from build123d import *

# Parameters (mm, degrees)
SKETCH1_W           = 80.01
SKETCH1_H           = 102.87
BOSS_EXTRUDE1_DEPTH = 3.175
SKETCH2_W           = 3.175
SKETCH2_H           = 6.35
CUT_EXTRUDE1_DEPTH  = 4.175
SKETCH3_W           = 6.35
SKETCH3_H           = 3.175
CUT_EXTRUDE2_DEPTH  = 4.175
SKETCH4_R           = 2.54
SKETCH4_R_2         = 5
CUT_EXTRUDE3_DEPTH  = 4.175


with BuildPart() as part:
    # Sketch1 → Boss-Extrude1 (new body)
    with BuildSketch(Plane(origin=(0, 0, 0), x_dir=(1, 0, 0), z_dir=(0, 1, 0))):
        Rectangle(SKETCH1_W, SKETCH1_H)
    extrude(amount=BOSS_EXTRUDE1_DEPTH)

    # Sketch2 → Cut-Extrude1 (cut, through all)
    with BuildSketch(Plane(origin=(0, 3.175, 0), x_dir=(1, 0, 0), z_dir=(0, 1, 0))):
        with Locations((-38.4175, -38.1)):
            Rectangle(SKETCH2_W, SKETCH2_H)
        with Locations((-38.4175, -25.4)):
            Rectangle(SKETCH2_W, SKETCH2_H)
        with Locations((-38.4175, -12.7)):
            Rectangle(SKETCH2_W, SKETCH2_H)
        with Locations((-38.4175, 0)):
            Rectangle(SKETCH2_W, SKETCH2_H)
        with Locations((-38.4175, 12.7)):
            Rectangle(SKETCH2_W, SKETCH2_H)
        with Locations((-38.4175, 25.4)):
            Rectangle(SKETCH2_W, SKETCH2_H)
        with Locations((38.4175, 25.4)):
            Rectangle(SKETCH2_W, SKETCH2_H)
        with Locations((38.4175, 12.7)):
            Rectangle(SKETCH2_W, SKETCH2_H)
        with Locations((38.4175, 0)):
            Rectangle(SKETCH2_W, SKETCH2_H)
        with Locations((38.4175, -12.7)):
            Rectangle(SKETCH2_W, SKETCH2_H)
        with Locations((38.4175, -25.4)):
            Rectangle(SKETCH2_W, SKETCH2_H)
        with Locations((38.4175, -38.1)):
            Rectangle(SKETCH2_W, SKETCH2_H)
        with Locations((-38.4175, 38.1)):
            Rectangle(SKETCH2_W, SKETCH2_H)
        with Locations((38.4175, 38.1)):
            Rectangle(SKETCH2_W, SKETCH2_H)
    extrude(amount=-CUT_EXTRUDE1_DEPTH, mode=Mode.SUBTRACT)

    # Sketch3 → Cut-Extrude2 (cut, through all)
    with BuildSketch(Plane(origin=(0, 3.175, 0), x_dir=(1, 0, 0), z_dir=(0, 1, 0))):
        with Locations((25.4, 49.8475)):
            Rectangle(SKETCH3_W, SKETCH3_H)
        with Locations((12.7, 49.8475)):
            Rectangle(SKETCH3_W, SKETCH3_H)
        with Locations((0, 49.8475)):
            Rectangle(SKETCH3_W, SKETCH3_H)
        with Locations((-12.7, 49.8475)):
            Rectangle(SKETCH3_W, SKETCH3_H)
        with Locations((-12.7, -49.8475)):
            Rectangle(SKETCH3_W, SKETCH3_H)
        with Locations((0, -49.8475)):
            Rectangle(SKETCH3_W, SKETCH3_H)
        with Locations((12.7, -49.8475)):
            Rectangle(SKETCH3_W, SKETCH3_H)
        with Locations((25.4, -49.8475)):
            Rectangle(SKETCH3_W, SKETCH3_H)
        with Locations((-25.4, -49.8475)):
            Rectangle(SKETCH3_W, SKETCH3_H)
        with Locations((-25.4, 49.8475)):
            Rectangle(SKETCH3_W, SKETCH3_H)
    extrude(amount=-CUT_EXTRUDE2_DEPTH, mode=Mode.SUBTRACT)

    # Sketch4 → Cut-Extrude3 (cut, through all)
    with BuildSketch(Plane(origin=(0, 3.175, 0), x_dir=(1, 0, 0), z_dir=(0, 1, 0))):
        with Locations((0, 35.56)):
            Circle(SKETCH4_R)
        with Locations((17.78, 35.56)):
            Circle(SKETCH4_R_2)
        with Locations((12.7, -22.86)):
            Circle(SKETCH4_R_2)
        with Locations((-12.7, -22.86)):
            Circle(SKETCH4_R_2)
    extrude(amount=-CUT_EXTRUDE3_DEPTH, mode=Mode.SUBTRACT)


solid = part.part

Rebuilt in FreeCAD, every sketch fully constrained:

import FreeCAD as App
import Part
import Sketcher
Q = App.Units.Quantity


def add_polygon(sketch, points):
    """Adds a closed chain of lines whose ends are joined by coincident constraints."""
    first, n = sketch.GeometryCount, len(points)
    for a, b in zip(points, points[1:] + points[:1]):
        sketch.addGeometry(Part.LineSegment(App.Vector(*a, 0), App.Vector(*b, 0)), False)
    for i in range(n):
        sketch.addConstraint(Sketcher.Constraint("Coincident", first + i, 2, first + (i + 1) % n, 1))

doc = App.newDocument("Part")
body = doc.addObject("PartDesign::Body", "Body")

# Sketch on XZ plane
sketch1 = doc.addObject("Sketcher::SketchObject", "Sketch")
body.addObject(sketch1)
sketch1.AttachmentSupport = (doc.XZ_Plane, [""])
sketch1.MapMode = "FlatFace"
add_polygon(sketch1, [(-40, -51), (-40, 51), (40, 51), (40, -51)])  # lines 0-3
sketch1.addConstraint(Sketcher.Constraint("Vertical", 0))
sketch1.addConstraint(Sketcher.Constraint("Horizontal", 1))
sketch1.addConstraint(Sketcher.Constraint("Vertical", 2))
sketch1.addConstraint(Sketcher.Constraint("Horizontal", 3))
sketch1.addConstraint(Sketcher.Constraint("Symmetric", 0, 2, 2, 2, -1, 1))
sketch1.addConstraint(Sketcher.Constraint("DistanceX", 1, 1, 1, 2, Q("3.15 in")))
sketch1.addConstraint(Sketcher.Constraint("DistanceY", 0, 1, 0, 2, Q("4.05 in")))
pad1 = doc.addObject("PartDesign::Pad", "Pad")
body.addObject(pad1)
pad1.Profile = sketch1
pad1.Length = Q("0.125 in")
pad1.Reversed = True

# Sketch on XZ plane
sketch2 = doc.addObject("Sketcher::SketchObject", "Sketch001")
body.addObject(sketch2)
sketch2.AttachmentSupport = (doc.XZ_Plane, [""])
sketch2.MapMode = "FlatFace"
sketch2.AttachmentOffset = App.Placement(App.Vector(0, 0, -0.125 * 25.4), App.Rotation())
add_polygon(sketch2, [(-40, 34.9), (-40, 41.3), (-36.8, 41.3), (-36.8, 34.9)])  # lines 0-3
add_polygon(sketch2, [(-40, 22.2), (-40, 28.6), (-36.8, 28.6), (-36.8, 22.2)])  # lines 4-7
add_polygon(sketch2, [(-40, 9.5), (-40, 15.9), (-36.8, 15.9), (-36.8, 9.5)])  # lines 8-11
add_polygon(sketch2, [(-40, -3.2), (-40, 3.2), (-36.8, 3.2), (-36.8, -3.2)])  # lines 12-15
add_polygon(sketch2, [(-40, -15.9), (-40, -9.5), (-36.8, -9.5), (-36.8, -15.9)])  # lines 16-19
add_polygon(sketch2, [(-40, -28.6), (-40, -22.2), (-36.8, -22.2), (-36.8, -28.6)])  # lines 20-23
add_polygon(sketch2, [(36.8, -28.6), (36.8, -22.2), (40, -22.2), (40, -28.6)])  # lines 24-27
add_polygon(sketch2, [(36.8, -15.9), (36.8, -9.5), (40, -9.5), (40, -15.9)])  # lines 28-31
add_polygon(sketch2, [(36.8, -3.2), (36.8, 3.2), (40, 3.2), (40, -3.2)])  # lines 32-35
add_polygon(sketch2, [(36.8, 9.5), (36.8, 15.9), (40, 15.9), (40, 9.5)])  # lines 36-39
add_polygon(sketch2, [(36.8, 22.2), (36.8, 28.6), (40, 28.6), (40, 22.2)])  # lines 40-43
add_polygon(sketch2, [(36.8, 34.9), (36.8, 41.3), (40, 41.3), (40, 34.9)])  # lines 44-47
add_polygon(sketch2, [(-40, -41.3), (-40, -34.9), (-36.8, -34.9), (-36.8, -41.3)])  # lines 48-51
add_polygon(sketch2, [(36.8, -41.3), (36.8, -34.9), (40, -34.9), (40, -41.3)])  # lines 52-55
sketch2.addConstraint(Sketcher.Constraint("Vertical", 0))
sketch2.addConstraint(Sketcher.Constraint("Horizontal", 1))
sketch2.addConstraint(Sketcher.Constraint("Vertical", 2))
sketch2.addConstraint(Sketcher.Constraint("Horizontal", 3))
sketch2.addConstraint(Sketcher.Constraint("Vertical", 4))
sketch2.addConstraint(Sketcher.Constraint("Horizontal", 5))
sketch2.addConstraint(Sketcher.Constraint("Vertical", 6))
sketch2.addConstraint(Sketcher.Constraint("Horizontal", 7))
sketch2.addConstraint(Sketcher.Constraint("Vertical", 8))
sketch2.addConstraint(Sketcher.Constraint("Horizontal", 9))
sketch2.addConstraint(Sketcher.Constraint("Vertical", 10))
sketch2.addConstraint(Sketcher.Constraint("Horizontal", 11))
sketch2.addConstraint(Sketcher.Constraint("Vertical", 12))
sketch2.addConstraint(Sketcher.Constraint("Horizontal", 13))
sketch2.addConstraint(Sketcher.Constraint("Vertical", 14))
sketch2.addConstraint(Sketcher.Constraint("Horizontal", 15))
sketch2.addConstraint(Sketcher.Constraint("Vertical", 16))
sketch2.addConstraint(Sketcher.Constraint("Horizontal", 17))
sketch2.addConstraint(Sketcher.Constraint("Vertical", 18))
sketch2.addConstraint(Sketcher.Constraint("Horizontal", 19))
sketch2.addConstraint(Sketcher.Constraint("Vertical", 20))
sketch2.addConstraint(Sketcher.Constraint("Horizontal", 21))
sketch2.addConstraint(Sketcher.Constraint("Vertical", 22))
sketch2.addConstraint(Sketcher.Constraint("Horizontal", 23))
sketch2.addConstraint(Sketcher.Constraint("Vertical", 24))
sketch2.addConstraint(Sketcher.Constraint("Horizontal", 25))
sketch2.addConstraint(Sketcher.Constraint("Vertical", 26))
sketch2.addConstraint(Sketcher.Constraint("Horizontal", 27))
sketch2.addConstraint(Sketcher.Constraint("Vertical", 28))
sketch2.addConstraint(Sketcher.Constraint("Horizontal", 29))
sketch2.addConstraint(Sketcher.Constraint("Vertical", 30))
sketch2.addConstraint(Sketcher.Constraint("Horizontal", 31))
sketch2.addConstraint(Sketcher.Constraint("Vertical", 32))
sketch2.addConstraint(Sketcher.Constraint("Horizontal", 33))
sketch2.addConstraint(Sketcher.Constraint("Vertical", 34))
sketch2.addConstraint(Sketcher.Constraint("Horizontal", 35))
sketch2.addConstraint(Sketcher.Constraint("Vertical", 36))
sketch2.addConstraint(Sketcher.Constraint("Horizontal", 37))
sketch2.addConstraint(Sketcher.Constraint("Vertical", 38))
sketch2.addConstraint(Sketcher.Constraint("Horizontal", 39))
sketch2.addConstraint(Sketcher.Constraint("Vertical", 40))
sketch2.addConstraint(Sketcher.Constraint("Horizontal", 41))
sketch2.addConstraint(Sketcher.Constraint("Vertical", 42))
sketch2.addConstraint(Sketcher.Constraint("Horizontal", 43))
sketch2.addConstraint(Sketcher.Constraint("Vertical", 44))
sketch2.addConstraint(Sketcher.Constraint("Horizontal", 45))
sketch2.addConstraint(Sketcher.Constraint("Vertical", 46))
sketch2.addConstraint(Sketcher.Constraint("Horizontal", 47))
sketch2.addConstraint(Sketcher.Constraint("Vertical", 48))
sketch2.addConstraint(Sketcher.Constraint("Horizontal", 49))
sketch2.addConstraint(Sketcher.Constraint("Vertical", 50))
sketch2.addConstraint(Sketcher.Constraint("Horizontal", 51))
sketch2.addConstraint(Sketcher.Constraint("Vertical", 52))
sketch2.addConstraint(Sketcher.Constraint("Horizontal", 53))
sketch2.addConstraint(Sketcher.Constraint("Vertical", 54))
sketch2.addConstraint(Sketcher.Constraint("Horizontal", 55))
sketch2.addConstraint(Sketcher.Constraint("Symmetric", 6, 2, 24, 2, -1, 1))
sketch2.addConstraint(Sketcher.Constraint("Symmetric", 4, 2, 26, 2, -1, 1))
sketch2.addConstraint(Sketcher.Constraint("Symmetric", 10, 2, 28, 2, -1, 1))
sketch2.addConstraint(Sketcher.Constraint("Symmetric", 8, 2, 30, 2, -1, 1))
sketch2.addConstraint(Sketcher.Constraint("Symmetric", 14, 2, 32, 2, -1, 1))
sketch2.addConstraint(Sketcher.Constraint("Symmetric", 12, 2, 34, 2, -1, 1))
sketch2.addConstraint(Sketcher.Constraint("Symmetric", 18, 2, 36, 2, -1, 1))
sketch2.addConstraint(Sketcher.Constraint("Symmetric", 16, 2, 38, 2, -1, 1))
sketch2.addConstraint(Sketcher.Constraint("Symmetric", 22, 2, 40, 2, -1, 1))
sketch2.addConstraint(Sketcher.Constraint("Symmetric", 20, 2, 42, 2, -1, 1))
sketch2.addConstraint(Sketcher.Constraint("Symmetric", 46, 2, 48, 2, -1, 1))
sketch2.addConstraint(Sketcher.Constraint("Symmetric", 44, 2, 50, 2, -1, 1))
sketch2.addConstraint(Sketcher.Constraint("Symmetric", 2, 2, 52, 2, -1, 1))
sketch2.addConstraint(Sketcher.Constraint("Symmetric", 0, 2, 54, 2, -1, 1))
sketch2.addConstraint(Sketcher.Constraint("Symmetric", 21, 2, 24, 2, -2))
sketch2.addConstraint(Sketcher.Constraint("Symmetric", 23, 2, 26, 2, -2))
sketch2.addConstraint(Sketcher.Constraint("Symmetric", 17, 2, 28, 2, -2))
sketch2.addConstraint(Sketcher.Constraint("Symmetric", 19, 2, 30, 2, -2))
sketch2.addConstraint(Sketcher.Constraint("Symmetric", 1, 2, 44, 2, -2))
sketch2.addConstraint(Sketcher.Constraint("Symmetric", 3, 2, 46, 2, -2))
sketch2.addConstraint(Sketcher.Constraint("Horizontal", 13, 2, 32, 2))
sketch2.addConstraint(Sketcher.Constraint("Vertical", 3, 2, 4, 2))
sketch2.addConstraint(Sketcher.Constraint("Vertical", 2, 2, 5, 2))
sketch2.addConstraint(Sketcher.Constraint("Vertical", 7, 2, 8, 2))
sketch2.addConstraint(Sketcher.Constraint("Vertical", 6, 2, 9, 2))
sketch2.addConstraint(Sketcher.Constraint("Vertical", 11, 2, 12, 2))
sketch2.addConstraint(Sketcher.Constraint("Vertical", 10, 2, 13, 2))
sketch2.addConstraint(Sketcher.Constraint("Equal", 2, 4))
sketch2.addConstraint(Sketcher.Constraint("Equal", 6, 8))
sketch2.addConstraint(Sketcher.Constraint("Equal", 10, 12))
sketch2.addConstraint(Sketcher.Constraint("DistanceY", 24, 2, 32, 2, Q("1 in")))
sketch2.addConstraint(Sketcher.Constraint("DistanceY", 28, 2, 36, 2, Q("1 in")))
sketch2.addConstraint(Sketcher.Constraint("DistanceY", 36, 2, 44, 2, Q("1 in")))
sketch2.addConstraint(Sketcher.Constraint("DistanceY", 0, 1, 0, 2, Q("0.25 in")))
sketch2.addConstraint(Sketcher.Constraint("DistanceX", 21, 2, 24, 2, Q("2.9 in")))
sketch2.addConstraint(Sketcher.Constraint("DistanceX", 1, 1, 1, 2, Q("0.125 in")))
pocket1 = doc.addObject("PartDesign::Pocket", "Pocket")
body.addObject(pocket1)
pocket1.Profile = sketch2
pocket1.Type = "ThroughAll"
pocket1.Reversed = True

# Sketch on XZ plane
sketch3 = doc.addObject("Sketcher::SketchObject", "Sketch002")
body.addObject(sketch3)
sketch3.AttachmentSupport = (doc.XZ_Plane, [""])
sketch3.MapMode = "FlatFace"
sketch3.AttachmentOffset = App.Placement(App.Vector(0, 0, -0.125 * 25.4), App.Rotation())
add_polygon(sketch3, [(22.2, -51.4), (22.2, -48.3), (28.6, -48.3), (28.6, -51.4)])  # lines 0-3
add_polygon(sketch3, [(9.5, -51.4), (9.5, -48.3), (15.9, -48.3), (15.9, -51.4)])  # lines 4-7
add_polygon(sketch3, [(-3.2, -51.4), (-3.2, -48.3), (3.2, -48.3), (3.2, -51.4)])  # lines 8-11
add_polygon(sketch3, [(-15.9, -51.4), (-15.9, -48.3), (-9.5, -48.3), (-9.5, -51.4)])  # lines 12-15
add_polygon(sketch3, [(-15.9, 48.3), (-15.9, 51.4), (-9.5, 51.4), (-9.5, 48.3)])  # lines 16-19
add_polygon(sketch3, [(-3.2, 48.3), (-3.2, 51.4), (3.2, 51.4), (3.2, 48.3)])  # lines 20-23
add_polygon(sketch3, [(9.5, 48.3), (9.5, 51.4), (15.9, 51.4), (15.9, 48.3)])  # lines 24-27
add_polygon(sketch3, [(22.2, 48.3), (22.2, 51.4), (28.6, 51.4), (28.6, 48.3)])  # lines 28-31
add_polygon(sketch3, [(-28.6, 48.3), (-28.6, 51.4), (-22.2, 51.4), (-22.2, 48.3)])  # lines 32-35
add_polygon(sketch3, [(-28.6, -51.4), (-28.6, -48.3), (-22.2, -48.3), (-22.2, -51.4)])  # lines 36-39
sketch3.addConstraint(Sketcher.Constraint("Vertical", 0))
sketch3.addConstraint(Sketcher.Constraint("Horizontal", 1))
sketch3.addConstraint(Sketcher.Constraint("Vertical", 2))
sketch3.addConstraint(Sketcher.Constraint("Horizontal", 3))
sketch3.addConstraint(Sketcher.Constraint("Vertical", 4))
sketch3.addConstraint(Sketcher.Constraint("Horizontal", 5))
sketch3.addConstraint(Sketcher.Constraint("Vertical", 6))
sketch3.addConstraint(Sketcher.Constraint("Horizontal", 7))
sketch3.addConstraint(Sketcher.Constraint("Vertical", 8))
sketch3.addConstraint(Sketcher.Constraint("Horizontal", 9))
sketch3.addConstraint(Sketcher.Constraint("Vertical", 10))
sketch3.addConstraint(Sketcher.Constraint("Horizontal", 11))
sketch3.addConstraint(Sketcher.Constraint("Vertical", 12))
sketch3.addConstraint(Sketcher.Constraint("Horizontal", 13))
sketch3.addConstraint(Sketcher.Constraint("Vertical", 14))
sketch3.addConstraint(Sketcher.Constraint("Horizontal", 15))
sketch3.addConstraint(Sketcher.Constraint("Vertical", 16))
sketch3.addConstraint(Sketcher.Constraint("Horizontal", 17))
sketch3.addConstraint(Sketcher.Constraint("Vertical", 18))
sketch3.addConstraint(Sketcher.Constraint("Horizontal", 19))
sketch3.addConstraint(Sketcher.Constraint("Vertical", 20))
sketch3.addConstraint(Sketcher.Constraint("Horizontal", 21))
sketch3.addConstraint(Sketcher.Constraint("Vertical", 22))
sketch3.addConstraint(Sketcher.Constraint("Horizontal", 23))
sketch3.addConstraint(Sketcher.Constraint("Vertical", 24))
sketch3.addConstraint(Sketcher.Constraint("Horizontal", 25))
sketch3.addConstraint(Sketcher.Constraint("Vertical", 26))
sketch3.addConstraint(Sketcher.Constraint("Horizontal", 27))
sketch3.addConstraint(Sketcher.Constraint("Vertical", 28))
sketch3.addConstraint(Sketcher.Constraint("Horizontal", 29))
sketch3.addConstraint(Sketcher.Constraint("Vertical", 30))
sketch3.addConstraint(Sketcher.Constraint("Horizontal", 31))
sketch3.addConstraint(Sketcher.Constraint("Vertical", 32))
sketch3.addConstraint(Sketcher.Constraint("Horizontal", 33))
sketch3.addConstraint(Sketcher.Constraint("Vertical", 34))
sketch3.addConstraint(Sketcher.Constraint("Horizontal", 35))
sketch3.addConstraint(Sketcher.Constraint("Vertical", 36))
sketch3.addConstraint(Sketcher.Constraint("Horizontal", 37))
sketch3.addConstraint(Sketcher.Constraint("Vertical", 38))
sketch3.addConstraint(Sketcher.Constraint("Horizontal", 39))
sketch3.addConstraint(Sketcher.Constraint("Symmetric", 6, 2, 16, 2, -1, 1))
sketch3.addConstraint(Sketcher.Constraint("Symmetric", 4, 2, 18, 2, -1, 1))
sketch3.addConstraint(Sketcher.Constraint("Symmetric", 10, 2, 20, 2, -1, 1))
sketch3.addConstraint(Sketcher.Constraint("Symmetric", 8, 2, 22, 2, -1, 1))
sketch3.addConstraint(Sketcher.Constraint("Symmetric", 14, 2, 24, 2, -1, 1))
sketch3.addConstraint(Sketcher.Constraint("Symmetric", 12, 2, 26, 2, -1, 1))
sketch3.addConstraint(Sketcher.Constraint("Symmetric", 2, 2, 32, 2, -1, 1))
sketch3.addConstraint(Sketcher.Constraint("Symmetric", 0, 2, 34, 2, -1, 1))
sketch3.addConstraint(Sketcher.Constraint("Symmetric", 30, 2, 36, 2, -1, 1))
sketch3.addConstraint(Sketcher.Constraint("Symmetric", 28, 2, 38, 2, -1, 1))
sketch3.addConstraint(Sketcher.Constraint("Symmetric", 5, 2, 12, 2, -2))
sketch3.addConstraint(Sketcher.Constraint("Symmetric", 7, 2, 14, 2, -2))
sketch3.addConstraint(Sketcher.Constraint("Symmetric", 29, 2, 32, 2, -2))
sketch3.addConstraint(Sketcher.Constraint("Symmetric", 31, 2, 34, 2, -2))
sketch3.addConstraint(Sketcher.Constraint("Horizontal", 1, 2, 4, 2))
sketch3.addConstraint(Sketcher.Constraint("Horizontal", 3, 2, 6, 2))
sketch3.addConstraint(Sketcher.Constraint("Horizontal", 5, 2, 8, 2))
sketch3.addConstraint(Sketcher.Constraint("Horizontal", 7, 2, 10, 2))
sketch3.addConstraint(Sketcher.Constraint("Vertical", 11, 2, 20, 2))
sketch3.addConstraint(Sketcher.Constraint("Equal", 3, 5))
sketch3.addConstraint(Sketcher.Constraint("Equal", 7, 9))
sketch3.addConstraint(Sketcher.Constraint("DistanceX", 8, 2, 0, 2, Q("1 in")))
sketch3.addConstraint(Sketcher.Constraint("DistanceX", 12, 2, 4, 2, Q("1 in")))
sketch3.addConstraint(Sketcher.Constraint("DistanceX", 1, 1, 1, 2, Q("0.25 in")))
sketch3.addConstraint(Sketcher.Constraint("DistanceY", 0, 2, -1, 1, Q("1.9 in")))
sketch3.addConstraint(Sketcher.Constraint("DistanceY", 0, 1, 0, 2, Q("0.125 in")))
pocket2 = doc.addObject("PartDesign::Pocket", "Pocket001")
body.addObject(pocket2)
pocket2.Profile = sketch3
pocket2.Type = "ThroughAll"
pocket2.Reversed = True

# Sketch on XZ plane
sketch4 = doc.addObject("Sketcher::SketchObject", "Sketch003")
body.addObject(sketch4)
sketch4.AttachmentSupport = (doc.XZ_Plane, [""])
sketch4.MapMode = "FlatFace"
sketch4.AttachmentOffset = App.Placement(App.Vector(0, 0, -0.125 * 25.4), App.Rotation())
sketch4.addGeometry(Part.Circle(App.Vector(0, -35.6, 0), App.Vector(0, 0, 1), 2.5), False)
sketch4.addGeometry(Part.Circle(App.Vector(17.8, -35.6, 0), App.Vector(0, 0, 1), 5), False)
sketch4.addGeometry(Part.Circle(App.Vector(12.7, 22.9, 0), App.Vector(0, 0, 1), 5), False)
sketch4.addGeometry(Part.Circle(App.Vector(-12.7, 22.9, 0), App.Vector(0, 0, 1), 5), False)
sketch4.addConstraint(Sketcher.Constraint("Equal", 1, 2))
sketch4.addConstraint(Sketcher.Constraint("Equal", 2, 3))
sketch4.addConstraint(Sketcher.Constraint("Symmetric", 2, 3, 3, 3, -2))
sketch4.addConstraint(Sketcher.Constraint("PointOnObject", 0, 3, -2))
sketch4.addConstraint(Sketcher.Constraint("Horizontal", 0, 3, 1, 3))
sketch4.addConstraint(Sketcher.Constraint("Diameter", 0, Q("0.2 in")))
sketch4.addConstraint(Sketcher.Constraint("DistanceX", 3, 3, 2, 3, Q("1 in")))
sketch4.addConstraint(Sketcher.Constraint("DistanceY", 0, 3, -1, 1, Q("1.4 in")))
sketch4.addConstraint(Sketcher.Constraint("DistanceX", -1, 1, 1, 3, Q("0.7 in")))
sketch4.addConstraint(Sketcher.Constraint("DistanceY", -1, 1, 2, 3, Q("0.9 in")))
sketch4.addConstraint(Sketcher.Constraint("Diameter", 1, Q("10 mm")))
pocket3 = doc.addObject("PartDesign::Pocket", "Pocket002")
body.addObject(pocket3)
pocket3.Profile = sketch4
pocket3.Type = "ThroughAll"
pocket3.Reversed = True

doc.recompute()
